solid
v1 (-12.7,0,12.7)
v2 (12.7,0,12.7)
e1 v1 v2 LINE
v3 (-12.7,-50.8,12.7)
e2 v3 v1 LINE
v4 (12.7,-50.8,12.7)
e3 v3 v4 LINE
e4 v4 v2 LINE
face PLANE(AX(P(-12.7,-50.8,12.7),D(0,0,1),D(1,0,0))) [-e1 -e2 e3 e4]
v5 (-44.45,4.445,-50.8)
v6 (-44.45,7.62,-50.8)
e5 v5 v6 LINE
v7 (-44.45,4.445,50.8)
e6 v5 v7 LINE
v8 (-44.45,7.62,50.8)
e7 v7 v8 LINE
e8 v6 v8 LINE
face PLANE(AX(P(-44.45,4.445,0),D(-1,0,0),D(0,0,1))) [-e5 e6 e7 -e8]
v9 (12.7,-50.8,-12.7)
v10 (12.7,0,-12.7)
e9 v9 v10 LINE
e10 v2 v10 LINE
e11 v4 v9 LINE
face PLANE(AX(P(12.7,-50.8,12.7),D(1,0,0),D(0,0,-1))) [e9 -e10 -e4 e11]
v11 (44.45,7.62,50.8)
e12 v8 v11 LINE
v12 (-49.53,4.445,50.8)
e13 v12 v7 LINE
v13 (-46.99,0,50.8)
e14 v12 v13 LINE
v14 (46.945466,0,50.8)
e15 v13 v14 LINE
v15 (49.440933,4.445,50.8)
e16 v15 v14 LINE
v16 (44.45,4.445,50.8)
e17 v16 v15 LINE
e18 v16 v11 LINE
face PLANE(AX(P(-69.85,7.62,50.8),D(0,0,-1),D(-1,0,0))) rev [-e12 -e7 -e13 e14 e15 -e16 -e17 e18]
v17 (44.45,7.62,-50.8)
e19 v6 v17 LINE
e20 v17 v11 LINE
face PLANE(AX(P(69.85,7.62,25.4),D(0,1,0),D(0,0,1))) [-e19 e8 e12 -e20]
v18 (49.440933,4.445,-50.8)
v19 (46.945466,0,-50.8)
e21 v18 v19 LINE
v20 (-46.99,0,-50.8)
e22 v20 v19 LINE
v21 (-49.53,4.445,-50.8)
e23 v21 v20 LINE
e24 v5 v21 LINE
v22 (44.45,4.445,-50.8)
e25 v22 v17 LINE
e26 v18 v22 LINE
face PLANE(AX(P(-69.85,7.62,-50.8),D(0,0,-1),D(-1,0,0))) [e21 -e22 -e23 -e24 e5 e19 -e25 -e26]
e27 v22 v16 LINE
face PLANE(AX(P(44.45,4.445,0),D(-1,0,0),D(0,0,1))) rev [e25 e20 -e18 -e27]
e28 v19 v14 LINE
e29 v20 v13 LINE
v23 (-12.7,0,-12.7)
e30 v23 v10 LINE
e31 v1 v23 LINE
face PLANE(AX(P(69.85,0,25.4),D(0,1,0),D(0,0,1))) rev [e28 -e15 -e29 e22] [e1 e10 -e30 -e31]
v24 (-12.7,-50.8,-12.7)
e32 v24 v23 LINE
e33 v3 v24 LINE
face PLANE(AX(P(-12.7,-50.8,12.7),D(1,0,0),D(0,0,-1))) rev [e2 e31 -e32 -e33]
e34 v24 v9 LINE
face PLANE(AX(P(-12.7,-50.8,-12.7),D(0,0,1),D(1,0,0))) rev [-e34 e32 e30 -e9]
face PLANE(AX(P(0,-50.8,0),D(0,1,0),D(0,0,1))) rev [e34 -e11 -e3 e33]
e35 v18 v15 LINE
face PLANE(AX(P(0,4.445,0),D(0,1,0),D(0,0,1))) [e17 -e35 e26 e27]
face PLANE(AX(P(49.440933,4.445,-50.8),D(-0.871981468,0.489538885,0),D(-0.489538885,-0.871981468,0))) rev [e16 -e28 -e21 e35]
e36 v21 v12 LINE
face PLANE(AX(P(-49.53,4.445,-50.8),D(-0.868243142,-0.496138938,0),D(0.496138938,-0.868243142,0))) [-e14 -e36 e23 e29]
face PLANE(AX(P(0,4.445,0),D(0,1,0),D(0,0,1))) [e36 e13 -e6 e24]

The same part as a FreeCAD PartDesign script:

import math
import FreeCAD as App
import Part
import Sketcher
from FreeCAD import Vector
Q = App.Units.Quantity

doc = App.newDocument("Part")
body = doc.addObject("PartDesign::Body", "Body")

sketch1 = body.newObject("Sketcher::SketchObject", "Sketch")
sketch1.AttachmentSupport = (doc.getObject("XZ_Plane"), [""])
sketch1.MapMode = "FlatFace"
sketch1.addGeometry(Part.LineSegment(Vector(69.85, -50.8, 0), Vector(-69.85, -50.8, 0)), False)
sketch1.addGeometry(Part.ArcOfCircle(Part.Circle(Vector(-69.85, -25.4, 0), Vector(0, 0, 1), 25.4), math.radians(180), math.radians(270)), False)
sketch1.addGeometry(Part.LineSegment(Vector(-95.25, -25.4, 0), Vector(-95.25, 25.4, 0)), False)
sketch1.addGeometry(Part.ArcOfCircle(Part.Circle(Vector(-69.85, 25.4, 0), Vector(0, 0, 1), 25.4), math.radians(90), math.radians(180)), False)
sketch1.addGeometry(Part.LineSegment(Vector(-69.85, 50.8, 0), Vector(69.85, 50.8, 0)), False)
sketch1.addGeometry(Part.ArcOfCircle(Part.Circle(Vector(69.85, 25.4, 0), Vector(0, 0, 1), 25.4), math.radians(0), math.radians(90)), False)
sketch1.addGeometry(Part.LineSegment(Vector(95.25, 25.4, 0), Vector(95.25, -25.4, 0)), False)
sketch1.addGeometry(Part.ArcOfCircle(Part.Circle(Vector(69.85, -25.4, 0), Vector(0, 0, 1), 25.4), math.radians(-90), math.radians(0)), False)
sketch1.addGeometry(Part.Circle(Vector(69.85, 25.4, 0), Vector(0, 0, 1), 6.35), False)
sketch1.addGeometry(Part.Circle(Vector(-69.85, 25.4, 0), Vector(0, 0, 1), 6.35), False)
sketch1.addGeometry(Part.Circle(Vector(69.85, -25.4, 0), Vector(0, 0, 1), 6.35), False)
sketch1.addGeometry(Part.Circle(Vector(-69.85, -25.4, 0), Vector(0, 0, 1), 6.35), False)
sketch1.addConstraint(Sketcher.Constraint("Tangent", 0, 2, 1, 2))
sketch1.addConstraint(Sketcher.Constraint("Tangent", 1, 1, 2, 1))
sketch1.addConstraint(Sketcher.Constraint("Tangent", 2, 2, 3, 2))
sketch1.addConstraint(Sketcher.Constraint("Tangent", 3, 1, 4, 1))
sketch1.addConstraint(Sketcher.Constraint("Tangent", 4, 2, 5, 2))
sketch1.addConstraint(Sketcher.Constraint("Tangent", 5, 1, 6, 1))
sketch1.addConstraint(Sketcher.Constraint("Tangent", 6, 2, 7, 2))
sketch1.addConstraint(Sketcher.Constraint("Tangent", 7, 1, 0, 1))
sketch1.addConstraint(Sketcher.Constraint("Horizontal", 0))
sketch1.addConstraint(Sketcher.Constraint("Vertical", 2))
sketch1.addConstraint(Sketcher.Constraint("Horizontal", 4))
sketch1.addConstraint(Sketcher.Constraint("Vertical", 6))
sketch1.addConstraint(Sketcher.Constraint("Coincident", 8, 3, 5, 3))
sketch1.addConstraint(Sketcher.Constraint("Coincident", 9, 3, 3, 3))
sketch1.addConstraint(Sketcher.Constraint("Coincident", 10, 3, 7, 3))
sketch1.addConstraint(Sketcher.Constraint("Coincident", 11, 3, 1, 3))
sketch1.addConstraint(Sketcher.Constraint("Equal", 1, 3))
sketch1.addConstraint(Sketcher.Constraint("Equal", 3, 5))
sketch1.addConstraint(Sketcher.Constraint("Equal", 5, 7))
sketch1.addConstraint(Sketcher.Constraint("Equal", 8, 9))
sketch1.addConstraint(Sketcher.Constraint("Equal", 9, 10))
sketch1.addConstraint(Sketcher.Constraint("Equal", 10, 11))
sketch1.addConstraint(Sketcher.Constraint("Symmetric", 1, 3, 5, 3, -1, 1))
sketch1.addConstraint(Sketcher.Constraint("Radius", 1, Q("1 in")))
sketch1.addConstraint(Sketcher.Constraint("Diameter", 8, Q("0.5 in")))
sketch1.addConstraint(Sketcher.Constraint("DistanceY", 2, 1, 2, 2, Q("2 in")))
sketch1.addConstraint(Sketcher.Constraint("DistanceX", 0, 2, 0, 1, Q("5.5 in")))
pad1 = body.newObject("PartDesign::Pad", "Pad")
pad1.Profile = sketch1
pad1.Length = Q("0.3 in")
pad1.Reversed = True

sketch2 = body.newObject("Sketcher::SketchObject", "Sketch001")
sketch2.AttachmentSupport = (doc.getObject("XZ_Plane"), [""])
sketch2.MapMode = "FlatFace"
sketch2.AttachmentOffset = App.Placement(Vector(0, 0, -0.3 * 25.4), App.Rotation())
sketch2.addGeometry(Part.LineSegment(Vector(-44.45, 50.8, 0), Vector(-44.45, -50.8, 0)), False)
sketch2.addGeometry(Part.LineSegment(Vector(-44.45, -50.8, 0), Vector(-69.85, -50.8, 0)), False)
sketch2.addGeometry(Part.ArcOfCircle(Part.Circle(Vector(-69.85, -25.4, 0), Vector(0, 0, 1), 25.4), math.radians(180), math.radians(270)), False)
sketch2.addGeometry(Part.LineSegment(Vector(-95.25, -25.4, 0), Vector(-95.25, 25.4, 0)), False)
sketch2.addGeometry(Part.ArcOfCircle(Part.Circle(Vector(-69.85, 25.4, 0), Vector(0, 0, 1), 25.4), math.radians(90), math.radians(180)), False)
sketch2.addGeometry(Part.LineSegment(Vector(-69.85, 50.8, 0), Vector(-44.45, 50.8, 0)), False)
sketch2.addGeometry(Part.Circle(Vector(-69.85, 25.4, 0), Vector(0, 0, 1), 6.35), False)
sketch2.addGeometry(Part.Circle(Vector(-69.85, -25.4, 0), Vector(0, 0, 1), 6.35), False)
sketch2.addGeometry(Part.LineSegment(Vector(69.85, -50.8, 0), Vector(44.45, -50.8, 0)), False)
sketch2.addGeometry(Part.LineSegment(Vector(44.45, -50.8, 0), Vector(44.45, 50.8, 0)), False)
sketch2.addGeometry(Part.LineSegment(Vector(44.45, 50.8, 0), Vector(69.85, 50.8, 0)), False)
sketch2.addGeometry(Part.ArcOfCircle(Part.Circle(Vector(69.85, 25.4, 0), Vector(0, 0, 1), 25.4), math.radians(0), math.radians(90)), False)
sketch2.addGeometry(Part.LineSegment(Vector(95.25, 25.4, 0), Vector(95.25, -25.4, 0)), False)
sketch2.addGeometry(Part.ArcOfCircle(Part.Circle(Vector(69.85, -25.4, 0), Vector(0, 0, 1), 25.4), math.radians(-90), math.radians(0)), False)
sketch2.addGeometry(Part.Circle(Vector(69.85, 25.4, 0), Vector(0, 0, 1), 6.35), False)
sketch2.addGeometry(Part.Circle(Vector(69.85, -25.4, 0), Vector(0, 0, 1), 6.35), False)
sketch2.addConstraint(Sketcher.Constraint("Coincident", 0, 2, 1, 1))
sketch2.addConstraint(Sketcher.Constraint("Tangent", 1, 2, 2, 2))
sketch2.addConstraint(Sketcher.Constraint("Tangent", 2, 1, 3, 1))
sketch2.addConstraint(Sketcher.Constraint("Tangent", 3, 2, 4, 2))
sketch2.addConstraint(Sketcher.Constraint("Tangent", 4, 1, 5, 1))
sketch2.addConstraint(Sketcher.Constraint("Coincident", 5, 2, 0, 1))
sketch2.addConstraint(Sketcher.Constraint("Coincident", 8, 2, 9, 1))
sketch2.addConstraint(Sketcher.Constraint("Coincident", 9, 2, 10, 1))
sketch2.addConstraint(Sketcher.Constraint("Tangent", 10, 2, 11, 2))
sketch2.addConstraint(Sketcher.Constraint("Tangent", 11, 1, 12, 1))
sketch2.addConstraint(Sketcher.Constraint("Tangent", 12, 2, 13, 2))
sketch2.addConstraint(Sketcher.Constraint("Tangent", 13, 1, 8, 1))
sketch2.addConstraint(Sketcher.Constraint("Vertical", 0))
sketch2.addConstraint(Sketcher.Constraint("Horizontal", 1))
sketch2.addConstraint(Sketcher.Constraint("Vertical", 3))
sketch2.addConstraint(Sketcher.Constraint("Horizontal", 5))
sketch2.addConstraint(Sketcher.Constraint("Horizontal", 8))
sketch2.addConstraint(Sketcher.Constraint("Vertical", 9))
sketch2.addConstraint(Sketcher.Constraint("Horizontal", 10))
sketch2.addConstraint(Sketcher.Constraint("Vertical", 12))
sketch2.addConstraint(Sketcher.Constraint("Coincident", 6, 3, 4, 3))
sketch2.addConstraint(Sketcher.Constraint("Coincident", 7, 3, 2, 3))
sketch2.addConstraint(Sketcher.Constraint("Coincident", 14, 3, 11, 3))
sketch2.addConstraint(Sketcher.Constraint("Coincident", 15, 3, 13, 3))
sketch2.addConstraint(Sketcher.Constraint("Equal", 2, 4))
sketch2.addConstraint(Sketcher.Constraint("Equal", 6, 7))
sketch2.addConstraint(Sketcher.Constraint("Equal", 4, 11))
sketch2.addConstraint(Sketcher.Constraint("Equal", 11, 13))
sketch2.addConstraint(Sketcher.Constraint("Equal", 7, 14))
sketch2.addConstraint(Sketcher.Constraint("Equal", 14, 15))
sketch2.addConstraint(Sketcher.Constraint("Symmetric", 2, 3, 11, 3, -1, 1))
sketch2.addConstraint(Sketcher.Constraint("Symmetric", 5, 2, 8, 2, -1, 1))
sketch2.addConstraint(Sketcher.Constraint("Horizontal", 6, 3, 11, 3))
sketch2.addConstraint(Sketcher.Constraint("Radius", 2, Q("1 in")))
sketch2.addConstraint(Sketcher.Constraint("Diameter", 6, Q("0.5 in")))
sketch2.addConstraint(Sketcher.Constraint("DistanceX", 1, 2, 1, 1, Q("1 in")))
sketch2.addConstraint(Sketcher.Constraint("DistanceY", 0, 2, 0, 1, Q("4 in")))
sketch2.addConstraint(Sketcher.Constraint("DistanceX", 4, 3, 11, 3, Q("5.5 in")))
pocket1 = body.newObject("PartDesign::Pocket", "Pocket")
pocket1.Profile = sketch2
pocket1.Length = Q("0.125 in")
pocket1.Reversed = True

sketch3 = body.newObject("Sketcher::SketchObject", "Sketch002")
sketch3.AttachmentSupport = (doc.getObject("XZ_Plane"), [""])
sketch3.MapMode = "FlatFace"
sketch3.addGeometry(Part.LineSegment(Vector(-12.7, 12.7, 0), Vector(-12.7, -12.7, 0)), False)
sketch3.addGeometry(Part.LineSegment(Vector(-12.7, -12.7, 0), Vector(12.7, -12.7, 0)), False)
sketch3.addGeometry(Part.LineSegment(Vector(12.7, -12.7, 0), Vector(12.7, 12.7, 0)), False)
sketch3.addGeometry(Part.LineSegment(Vector(12.7, 12.7, 0), Vector(-12.7, 12.7, 0)), False)
sketch3.addConstraint(Sketcher.Constraint("Coincident", 0, 2, 1, 1))
sketch3.addConstraint(Sketcher.Constraint("Coincident", 1, 2, 2, 1))
sketch3.addConstraint(Sketcher.Constraint("Coincident", 2, 2, 3, 1))
sketch3.addConstraint(Sketcher.Constraint("Coincident", 3, 2, 0, 1))
sketch3.addConstraint(Sketcher.Constraint("Vertical", 0))
sketch3.addConstraint(Sketcher.Constraint("Horizontal", 1))
sketch3.addConstraint(Sketcher.Constraint("Vertical", 2))
sketch3.addConstraint(Sketcher.Constraint("Horizontal", 3))
sketch3.addConstraint(Sketcher.Constraint("Symmetric", 0, 2, 2, 2, -1, 1))
sketch3.addConstraint(Sketcher.Constraint("Equal", 3, 0))
sketch3.addConstraint(Sketcher.Constraint("DistanceX", 1, 1, 1, 2, Q("1 in")))
pad2 = body.newObject("PartDesign::Pad", "Pad001")
pad2.Profile = sketch3
pad2.Length = Q("2 in")

sketch4 = body.newObject("Sketcher::SketchObject", "Sketch003")
sketch4.AttachmentSupport = (doc.getObject("XY_Plane"), [""])
sketch4.MapMode = "FlatFace"
sketch4.AttachmentOffset = App.Placement(Vector(0, 0, 2 * 25.4), App.Rotation())
sketch4.addGeometry(Part.LineSegment(Vector(-49.53, 4.445, 0), Vector(-110.026456, 4.445, 0)), False)
sketch4.addGeometry(Part.LineSegment(Vector(-110.026456, 4.445, 0), Vector(-110.026456, 0, 0)), False)
sketch4.addGeometry(Part.LineSegment(Vector(-110.026456, 0, 0), Vector(-46.99, 0, 0)), False)
sketch4.addGeometry(Part.LineSegment(Vector(-46.99, 0, 0), Vector(-49.53, 4.445, 0)), False)
sketch4.addGeometry(Part.LineSegment(Vector(49.440933, 4.445, 0), Vector(46.945466, 0, 0)), False)
sketch4.addGeometry(Part.LineSegment(Vector(46.945466, 0, 0), Vector(109.424018, 0, 0)), False)
sketch4.addGeometry(Part.LineSegment(Vector(109.424018, 0, 0), Vector(109.424018, 4.445, 0)), False)
sketch4.addGeometry(Part.LineSegment(Vector(109.424018, 4.445, 0), Vector(49.440933, 4.445, 0)), False)
sketch4.addConstraint(Sketcher.Constraint("Coincident", 0, 2, 1, 1))
sketch4.addConstraint(Sketcher.Constraint("Coincident", 1, 2, 2, 1))
sketch4.addConstraint(Sketcher.Constraint("Coincident", 2, 2, 3, 1))
sketch4.addConstraint(Sketcher.Constraint("Coincident", 3, 2, 0, 1))
sketch4.addConstraint(Sketcher.Constraint("Coincident", 4, 2, 5, 1))
sketch4.addConstraint(Sketcher.Constraint("Coincident", 5, 2, 6, 1))
sketch4.addConstraint(Sketcher.Constraint("Coincident", 6, 2, 7, 1))
sketch4.addConstraint(Sketcher.Constraint("Coincident", 7, 2, 4, 1))
sketch4.addConstraint(Sketcher.Constraint("Horizontal", 0))
sketch4.addConstraint(Sketcher.Constraint("Vertical", 1))
sketch4.addConstraint(Sketcher.Constraint("Horizontal", 2))
sketch4.addConstraint(Sketcher.Constraint("Horizontal", 5))
sketch4.addConstraint(Sketcher.Constraint("Vertical", 6))
sketch4.addConstraint(Sketcher.Constraint("Horizontal", 7))
sketch4.addConstraint(Sketcher.Constraint("PointOnObject", 1, 2, -1))
sketch4.addConstraint(Sketcher.Constraint("PointOnObject", 4, 2, -1))
sketch4.addConstraint(Sketcher.Constraint("Horizontal", 3, 2, 6, 2))
sketch4.addConstraint(Sketcher.Constraint("DistanceX", 3, 2, 2, 2, Q("0.1 in")))
sketch4.addConstraint(Sketcher.Constraint("DistanceY", 1, 2, 1, 1, Q("0.175 in")))
sketch4.addConstraint(Sketcher.Constraint("DistanceX", 2, 2, -1, 1, Q("1.85 in")))
sketch4.addConstraint(Sketcher.Constraint("DistanceX", 5, 1, 5, 2, Q("62.478551 mm")))
sketch4.addConstraint(Sketcher.Constraint("DistanceX", 0, 2, 0, 1, Q("60.496456 mm")))
sketch4.addConstraint(Sketcher.Constraint("DistanceX", 7, 2, 7, 1, Q("59.983085 mm")))
sketch4.addConstraint(Sketcher.Constraint("DistanceX", 1, 2, 4, 2, Q("156.971922 mm")))
pocket2 = body.newObject("PartDesign::Pocket", "Pocket001")
pocket2.Profile = sketch4
pocket2.Type = "ThroughAll"

doc.recompute()
